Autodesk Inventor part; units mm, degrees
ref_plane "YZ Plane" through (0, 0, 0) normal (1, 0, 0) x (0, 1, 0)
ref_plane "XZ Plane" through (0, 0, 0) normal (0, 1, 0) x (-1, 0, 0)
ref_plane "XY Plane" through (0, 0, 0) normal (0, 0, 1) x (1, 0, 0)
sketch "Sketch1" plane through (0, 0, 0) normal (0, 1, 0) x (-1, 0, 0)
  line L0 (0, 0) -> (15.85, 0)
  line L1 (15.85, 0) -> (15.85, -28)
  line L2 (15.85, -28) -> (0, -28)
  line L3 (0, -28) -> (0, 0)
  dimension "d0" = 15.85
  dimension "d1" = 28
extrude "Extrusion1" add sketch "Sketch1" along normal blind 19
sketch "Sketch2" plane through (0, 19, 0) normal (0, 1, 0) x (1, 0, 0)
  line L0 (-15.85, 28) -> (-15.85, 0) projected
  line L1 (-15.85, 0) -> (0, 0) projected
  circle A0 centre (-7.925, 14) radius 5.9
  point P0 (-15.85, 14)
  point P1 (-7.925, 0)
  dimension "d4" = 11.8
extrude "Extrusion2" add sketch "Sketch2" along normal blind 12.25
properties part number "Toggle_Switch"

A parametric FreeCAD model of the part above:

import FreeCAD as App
import Part
import Sketcher

V = App.Vector
Q = App.Units.Quantity


def add_polygon(sketch, points):
    """Adds a closed chain of lines whose ends are joined by coincident constraints."""
    first, n = sketch.GeometryCount, len(points)
    for a, b in zip(points, points[1:] + points[:1]):
        sketch.addGeometry(Part.LineSegment(App.Vector(*a, 0), App.Vector(*b, 0)), False)
    for i in range(n):
        sketch.addConstraint(Sketcher.Constraint("Coincident", first + i, 2, first + (i + 1) % n, 1))

doc = App.newDocument("Part")
body = doc.addObject("PartDesign::Body", "Body")

# Sketch on XZ plane
sketch1 = body.newObject("Sketcher::SketchObject", "Sketch")
sketch1.AttachmentSupport = (doc.getObject("XZ_Plane"), [""])
sketch1.MapMode = "FlatFace"
add_polygon(sketch1, [(-16, 0), (0, 0), (0, -28), (-16, -28)])  # lines 0-3
sketch1.addConstraint([
    Sketcher.Constraint("Horizontal", 0),
    Sketcher.Constraint("Vertical", 1),
    Sketcher.Constraint("Horizontal", 2),
    Sketcher.Constraint("Vertical", 3),
    Sketcher.Constraint("Coincident", 0, 2, -1, 1),
    Sketcher.Constraint("DistanceY", 1, 2, 1, 1, Q("28 mm")),
    Sketcher.Constraint("DistanceX", 0, 1, 0, 2, Q("15.85 mm")),
])
pad1 = body.newObject("PartDesign::Pad", "Pad")
pad1.Profile = sketch1
pad1.Length = 19
pad1.Reversed = True

# Sketch on XZ plane
sketch2 = body.newObject("Sketcher::SketchObject", "Sketch001")
sketch2.AttachmentSupport = (doc.getObject("XZ_Plane"), [""])
sketch2.MapMode = "FlatFace"
sketch2.AttachmentOffset = App.Placement(V(0, 0, -19), App.Rotation())
sketch2.addGeometry(Part.Circle(V(-8, -14, 0), V(0, 0, 1), 6), False)
sketch2.addConstraint([
    Sketcher.Constraint("Diameter", 0, Q("11.8 mm")),
    Sketcher.Constraint("DistanceY", 0, 3, -1, 1, Q("14 mm")),
    Sketcher.Constraint("DistanceX", 0, 3, -1, 1, Q("7.925 mm")),
])
pad2 = body.newObject("PartDesign::Pad", "Pad001")
pad2.Profile = sketch2
pad2.Length = 12.25
pad2.Reversed = True

doc.recompute()
